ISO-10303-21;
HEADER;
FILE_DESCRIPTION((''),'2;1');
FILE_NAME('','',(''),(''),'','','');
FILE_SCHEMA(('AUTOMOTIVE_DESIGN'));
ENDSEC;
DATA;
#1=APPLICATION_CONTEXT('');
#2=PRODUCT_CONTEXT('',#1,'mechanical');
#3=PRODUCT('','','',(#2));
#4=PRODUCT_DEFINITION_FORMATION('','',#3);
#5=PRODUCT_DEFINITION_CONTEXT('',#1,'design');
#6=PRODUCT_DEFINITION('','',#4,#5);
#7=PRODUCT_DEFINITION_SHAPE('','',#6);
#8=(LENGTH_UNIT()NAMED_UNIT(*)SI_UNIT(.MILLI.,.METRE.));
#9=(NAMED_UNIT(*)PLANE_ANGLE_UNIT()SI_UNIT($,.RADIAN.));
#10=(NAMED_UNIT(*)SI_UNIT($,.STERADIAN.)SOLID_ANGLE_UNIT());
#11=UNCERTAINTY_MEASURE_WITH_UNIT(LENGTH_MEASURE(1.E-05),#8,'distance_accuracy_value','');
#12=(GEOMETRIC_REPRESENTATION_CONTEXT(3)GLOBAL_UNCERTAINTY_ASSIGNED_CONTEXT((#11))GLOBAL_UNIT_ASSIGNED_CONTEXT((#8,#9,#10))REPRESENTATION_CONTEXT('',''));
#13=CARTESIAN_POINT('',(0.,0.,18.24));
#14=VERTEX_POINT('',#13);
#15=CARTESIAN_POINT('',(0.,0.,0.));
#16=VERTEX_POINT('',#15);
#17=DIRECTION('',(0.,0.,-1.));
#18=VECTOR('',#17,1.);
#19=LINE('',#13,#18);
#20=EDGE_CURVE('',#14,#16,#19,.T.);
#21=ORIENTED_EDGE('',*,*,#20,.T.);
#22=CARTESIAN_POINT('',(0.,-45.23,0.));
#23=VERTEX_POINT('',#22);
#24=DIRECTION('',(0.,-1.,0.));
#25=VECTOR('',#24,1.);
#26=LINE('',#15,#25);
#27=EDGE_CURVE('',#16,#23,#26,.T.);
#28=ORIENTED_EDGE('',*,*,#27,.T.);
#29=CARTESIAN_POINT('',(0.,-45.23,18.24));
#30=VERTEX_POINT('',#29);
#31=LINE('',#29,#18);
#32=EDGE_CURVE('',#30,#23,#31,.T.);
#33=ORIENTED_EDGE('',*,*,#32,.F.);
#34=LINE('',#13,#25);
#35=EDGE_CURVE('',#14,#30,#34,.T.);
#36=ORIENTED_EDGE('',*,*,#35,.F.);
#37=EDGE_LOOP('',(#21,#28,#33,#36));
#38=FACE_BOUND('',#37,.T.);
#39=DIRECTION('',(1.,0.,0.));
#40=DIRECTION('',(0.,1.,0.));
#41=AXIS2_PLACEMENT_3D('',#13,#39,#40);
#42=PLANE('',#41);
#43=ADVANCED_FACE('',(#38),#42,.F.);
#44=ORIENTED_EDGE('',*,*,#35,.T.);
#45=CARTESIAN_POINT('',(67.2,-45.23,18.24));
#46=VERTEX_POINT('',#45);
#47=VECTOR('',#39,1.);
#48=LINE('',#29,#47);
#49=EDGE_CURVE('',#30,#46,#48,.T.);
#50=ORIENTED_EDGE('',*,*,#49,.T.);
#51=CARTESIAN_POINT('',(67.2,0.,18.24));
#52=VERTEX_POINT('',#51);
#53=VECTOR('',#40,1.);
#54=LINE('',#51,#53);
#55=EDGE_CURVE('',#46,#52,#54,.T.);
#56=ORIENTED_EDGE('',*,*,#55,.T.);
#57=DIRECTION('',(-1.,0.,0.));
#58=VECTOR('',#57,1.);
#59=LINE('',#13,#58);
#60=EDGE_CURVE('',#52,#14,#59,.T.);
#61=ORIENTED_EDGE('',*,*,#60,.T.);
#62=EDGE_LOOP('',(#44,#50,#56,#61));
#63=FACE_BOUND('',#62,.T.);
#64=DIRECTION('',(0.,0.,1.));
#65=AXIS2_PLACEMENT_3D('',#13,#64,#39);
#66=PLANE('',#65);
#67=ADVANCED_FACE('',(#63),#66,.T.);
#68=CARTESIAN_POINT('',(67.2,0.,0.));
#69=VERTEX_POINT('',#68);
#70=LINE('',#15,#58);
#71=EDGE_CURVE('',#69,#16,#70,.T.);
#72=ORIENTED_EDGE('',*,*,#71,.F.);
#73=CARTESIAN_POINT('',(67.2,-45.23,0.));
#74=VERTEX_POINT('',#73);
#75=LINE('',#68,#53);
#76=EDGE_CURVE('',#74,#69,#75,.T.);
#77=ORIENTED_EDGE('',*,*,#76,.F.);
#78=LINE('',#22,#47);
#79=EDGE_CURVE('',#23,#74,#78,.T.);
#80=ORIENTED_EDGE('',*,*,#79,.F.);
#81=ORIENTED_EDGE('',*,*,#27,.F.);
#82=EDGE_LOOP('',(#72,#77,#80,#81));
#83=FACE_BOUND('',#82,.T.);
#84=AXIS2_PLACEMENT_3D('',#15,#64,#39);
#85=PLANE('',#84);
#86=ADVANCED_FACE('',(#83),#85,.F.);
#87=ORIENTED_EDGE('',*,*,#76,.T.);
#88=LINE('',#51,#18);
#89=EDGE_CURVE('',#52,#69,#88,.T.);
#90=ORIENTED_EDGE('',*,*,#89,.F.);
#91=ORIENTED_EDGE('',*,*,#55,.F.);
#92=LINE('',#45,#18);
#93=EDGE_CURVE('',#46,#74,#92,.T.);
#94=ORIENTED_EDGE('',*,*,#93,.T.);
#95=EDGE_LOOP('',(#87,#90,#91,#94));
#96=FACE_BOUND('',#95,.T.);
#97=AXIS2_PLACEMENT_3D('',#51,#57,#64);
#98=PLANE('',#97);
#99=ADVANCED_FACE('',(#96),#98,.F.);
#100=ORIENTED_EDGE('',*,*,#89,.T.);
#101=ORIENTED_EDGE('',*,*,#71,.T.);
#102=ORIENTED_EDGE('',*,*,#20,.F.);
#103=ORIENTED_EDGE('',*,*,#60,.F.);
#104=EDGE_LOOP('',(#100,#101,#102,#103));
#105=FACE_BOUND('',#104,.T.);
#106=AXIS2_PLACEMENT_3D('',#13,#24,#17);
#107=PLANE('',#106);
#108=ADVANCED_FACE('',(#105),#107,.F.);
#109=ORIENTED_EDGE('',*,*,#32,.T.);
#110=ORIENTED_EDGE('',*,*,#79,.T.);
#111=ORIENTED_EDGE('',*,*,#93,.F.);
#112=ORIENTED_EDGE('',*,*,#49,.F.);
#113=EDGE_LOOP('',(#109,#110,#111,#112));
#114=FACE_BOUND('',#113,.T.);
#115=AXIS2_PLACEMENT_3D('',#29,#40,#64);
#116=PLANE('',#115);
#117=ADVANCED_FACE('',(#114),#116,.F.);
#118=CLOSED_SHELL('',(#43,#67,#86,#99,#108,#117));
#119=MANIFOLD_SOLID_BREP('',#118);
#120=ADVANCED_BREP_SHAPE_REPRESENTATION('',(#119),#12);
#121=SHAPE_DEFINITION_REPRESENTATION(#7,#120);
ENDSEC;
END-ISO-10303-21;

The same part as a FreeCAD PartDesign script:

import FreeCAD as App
import Part
import Sketcher
from FreeCAD import Vector

doc = App.newDocument("Part")
body = doc.addObject("PartDesign::Body", "Body")

# Sketch on XY plane
sketch1 = body.newObject("Sketcher::SketchObject", "Sketch")
sketch1.AttachmentSupport = (doc.getObject("XY_Plane"), [""])
sketch1.MapMode = "FlatFace"
sketch1.addGeometry([
    Part.LineSegment(Vector(0, 0, 0), Vector(0, -45, 0)),
    Part.LineSegment(Vector(0, -45, 0), Vector(67, -45, 0)),
    Part.LineSegment(Vector(67, -45, 0), Vector(67, 0, 0)),
    Part.LineSegment(Vector(67, 0, 0), Vector(0, 0, 0)),
], False)
sketch1.addConstraint([
    Sketcher.Constraint("Coincident", 0, 2, 1, 1),
    Sketcher.Constraint("Coincident", 1, 2, 2, 1),
    Sketcher.Constraint("Coincident", 2, 2, 3, 1),
    Sketcher.Constraint("Coincident", 3, 2, 0, 1),
    Sketcher.Constraint("Vertical", 0),
    Sketcher.Constraint("Horizontal", 1),
    Sketcher.Constraint("Vertical", 2),
    Sketcher.Constraint("Horizontal", 3),
    Sketcher.Constraint("Coincident", 3, 2, -1, 1),
    Sketcher.Constraint("DistanceX", 1, 1, 1, 2, 67.2),
    Sketcher.Constraint("DistanceY", 0, 2, 0, 1, 45.23),
])
pad1 = body.newObject("PartDesign::Pad", "Pad")
pad1.Profile = sketch1
pad1.Length = 18.24

doc.recompute()
